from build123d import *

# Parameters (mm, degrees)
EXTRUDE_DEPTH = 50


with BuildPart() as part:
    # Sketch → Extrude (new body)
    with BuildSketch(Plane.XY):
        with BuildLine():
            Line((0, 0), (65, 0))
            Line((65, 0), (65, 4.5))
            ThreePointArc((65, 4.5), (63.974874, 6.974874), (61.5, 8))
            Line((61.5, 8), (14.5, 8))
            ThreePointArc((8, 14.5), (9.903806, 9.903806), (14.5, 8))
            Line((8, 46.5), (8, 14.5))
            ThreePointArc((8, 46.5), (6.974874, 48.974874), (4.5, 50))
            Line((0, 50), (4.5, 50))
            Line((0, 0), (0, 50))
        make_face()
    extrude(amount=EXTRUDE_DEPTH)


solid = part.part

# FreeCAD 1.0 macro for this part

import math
import FreeCAD as App
import Part
import Sketcher

V = App.Vector

doc = App.newDocument("Part")
params = doc.addObject("Spreadsheet::Sheet", "Params")
for row, (alias, value) in enumerate([
    ("sketch1_radius", "3.499999 mm"),
    ("sketch1_radius2", "6.5 mm"),
    ("sketch1_width", "65 mm"),
    ("sketch1_width2", "47 mm"),
    ("sketch1_height", "32 mm"),
    ("pad1_length", "50 mm"),
], start=1):
    params.set(f"A{row}", alias)
    params.set(f"B{row}", "=" + value)
    params.setAlias(f"B{row}", alias)

body = doc.addObject("PartDesign::Body", "Body")

# Sketch on XY plane
sketch1 = doc.addObject("Sketcher::SketchObject", "Sketch")
body.addObject(sketch1)
sketch1.AttachmentSupport = (doc.XY_Plane, [""])
sketch1.MapMode = "FlatFace"
sketch1.addGeometry([
    Part.LineSegment(V(0, 0, 0), V(65, 0, 0)),  # 0
    Part.LineSegment(V(65, 0, 0), V(65, 4.5, 0)),  # 1
    Part.ArcOfCircle(Part.Circle(V(61.5, 4.5, 0), V(0, 0, 1), 3.5), math.radians(0), math.radians(90)),  # 2
    Part.LineSegment(V(61.5, 8, 0), V(14.5, 8, 0)),  # 3
    Part.ArcOfCircle(Part.Circle(V(14.5, 14.5, 0), V(0, 0, 1), 6.5), math.radians(-180), math.radians(-90)),  # 4
    Part.LineSegment(V(8, 14.5, 0), V(8, 46.5, 0)),  # 5
    Part.ArcOfCircle(Part.Circle(V(4.5, 46.5, 0), V(0, 0, 1), 3.5), math.radians(0), math.radians(90)),  # 6
    Part.LineSegment(V(4.5, 50, 0), V(0, 50, 0)),  # 7
    Part.LineSegment(V(0, 50, 0), V(0, 0, 0)),  # 8
], False)
sketch1.addConstraint([
    Sketcher.Constraint("Coincident", 0, 2, 1, 1),
    Sketcher.Constraint("Tangent", 1, 2, 2, 1),
    Sketcher.Constraint("Tangent", 2, 2, 3, 1),
    Sketcher.Constraint("Tangent", 3, 2, 4, 2),
    Sketcher.Constraint("Tangent", 4, 1, 5, 1),
    Sketcher.Constraint("Tangent", 5, 2, 6, 1),
    Sketcher.Constraint("Tangent", 6, 2, 7, 1),
    Sketcher.Constraint("Coincident", 7, 2, 8, 1),
    Sketcher.Constraint("Coincident", 8, 2, 0, 1),
    Sketcher.Constraint("Horizontal", 0),
    Sketcher.Constraint("Vertical", 1),
    Sketcher.Constraint("Horizontal", 3),
    Sketcher.Constraint("Vertical", 5),
    Sketcher.Constraint("Horizontal", 7),
    Sketcher.Constraint("Vertical", 8),
    Sketcher.Constraint("Coincident", 8, 2, -1, 1),
    Sketcher.Constraint("Equal", 2, 6),
    Sketcher.Constraint("Equal", 7, 1),
    Sketcher.Constraint("Radius", 2, 3.499999),
    Sketcher.Constraint("Radius", 4, 6.5),
    Sketcher.Constraint("DistanceX", 0, 1, 0, 2, 65.0),
    Sketcher.Constraint("DistanceX", 3, 2, 3, 1, 47.0),
    Sketcher.Constraint("DistanceY", 5, 1, 5, 2, 32.0),
])
sketch1.setExpression("Constraints[18]", "Params.sketch1_radius")
sketch1.setExpression("Constraints[19]", "Params.sketch1_radius2")
sketch1.setExpression("Constraints[20]", "Params.sketch1_width")
sketch1.setExpression("Constraints[21]", "Params.sketch1_width2")
sketch1.setExpression("Constraints[22]", "Params.sketch1_height")
pad1 = doc.addObject("PartDesign::Pad", "Pad")
body.addObject(pad1)
pad1.Profile = sketch1
pad1.setExpression("Length", "Params.pad1_length")

doc.recompute()
